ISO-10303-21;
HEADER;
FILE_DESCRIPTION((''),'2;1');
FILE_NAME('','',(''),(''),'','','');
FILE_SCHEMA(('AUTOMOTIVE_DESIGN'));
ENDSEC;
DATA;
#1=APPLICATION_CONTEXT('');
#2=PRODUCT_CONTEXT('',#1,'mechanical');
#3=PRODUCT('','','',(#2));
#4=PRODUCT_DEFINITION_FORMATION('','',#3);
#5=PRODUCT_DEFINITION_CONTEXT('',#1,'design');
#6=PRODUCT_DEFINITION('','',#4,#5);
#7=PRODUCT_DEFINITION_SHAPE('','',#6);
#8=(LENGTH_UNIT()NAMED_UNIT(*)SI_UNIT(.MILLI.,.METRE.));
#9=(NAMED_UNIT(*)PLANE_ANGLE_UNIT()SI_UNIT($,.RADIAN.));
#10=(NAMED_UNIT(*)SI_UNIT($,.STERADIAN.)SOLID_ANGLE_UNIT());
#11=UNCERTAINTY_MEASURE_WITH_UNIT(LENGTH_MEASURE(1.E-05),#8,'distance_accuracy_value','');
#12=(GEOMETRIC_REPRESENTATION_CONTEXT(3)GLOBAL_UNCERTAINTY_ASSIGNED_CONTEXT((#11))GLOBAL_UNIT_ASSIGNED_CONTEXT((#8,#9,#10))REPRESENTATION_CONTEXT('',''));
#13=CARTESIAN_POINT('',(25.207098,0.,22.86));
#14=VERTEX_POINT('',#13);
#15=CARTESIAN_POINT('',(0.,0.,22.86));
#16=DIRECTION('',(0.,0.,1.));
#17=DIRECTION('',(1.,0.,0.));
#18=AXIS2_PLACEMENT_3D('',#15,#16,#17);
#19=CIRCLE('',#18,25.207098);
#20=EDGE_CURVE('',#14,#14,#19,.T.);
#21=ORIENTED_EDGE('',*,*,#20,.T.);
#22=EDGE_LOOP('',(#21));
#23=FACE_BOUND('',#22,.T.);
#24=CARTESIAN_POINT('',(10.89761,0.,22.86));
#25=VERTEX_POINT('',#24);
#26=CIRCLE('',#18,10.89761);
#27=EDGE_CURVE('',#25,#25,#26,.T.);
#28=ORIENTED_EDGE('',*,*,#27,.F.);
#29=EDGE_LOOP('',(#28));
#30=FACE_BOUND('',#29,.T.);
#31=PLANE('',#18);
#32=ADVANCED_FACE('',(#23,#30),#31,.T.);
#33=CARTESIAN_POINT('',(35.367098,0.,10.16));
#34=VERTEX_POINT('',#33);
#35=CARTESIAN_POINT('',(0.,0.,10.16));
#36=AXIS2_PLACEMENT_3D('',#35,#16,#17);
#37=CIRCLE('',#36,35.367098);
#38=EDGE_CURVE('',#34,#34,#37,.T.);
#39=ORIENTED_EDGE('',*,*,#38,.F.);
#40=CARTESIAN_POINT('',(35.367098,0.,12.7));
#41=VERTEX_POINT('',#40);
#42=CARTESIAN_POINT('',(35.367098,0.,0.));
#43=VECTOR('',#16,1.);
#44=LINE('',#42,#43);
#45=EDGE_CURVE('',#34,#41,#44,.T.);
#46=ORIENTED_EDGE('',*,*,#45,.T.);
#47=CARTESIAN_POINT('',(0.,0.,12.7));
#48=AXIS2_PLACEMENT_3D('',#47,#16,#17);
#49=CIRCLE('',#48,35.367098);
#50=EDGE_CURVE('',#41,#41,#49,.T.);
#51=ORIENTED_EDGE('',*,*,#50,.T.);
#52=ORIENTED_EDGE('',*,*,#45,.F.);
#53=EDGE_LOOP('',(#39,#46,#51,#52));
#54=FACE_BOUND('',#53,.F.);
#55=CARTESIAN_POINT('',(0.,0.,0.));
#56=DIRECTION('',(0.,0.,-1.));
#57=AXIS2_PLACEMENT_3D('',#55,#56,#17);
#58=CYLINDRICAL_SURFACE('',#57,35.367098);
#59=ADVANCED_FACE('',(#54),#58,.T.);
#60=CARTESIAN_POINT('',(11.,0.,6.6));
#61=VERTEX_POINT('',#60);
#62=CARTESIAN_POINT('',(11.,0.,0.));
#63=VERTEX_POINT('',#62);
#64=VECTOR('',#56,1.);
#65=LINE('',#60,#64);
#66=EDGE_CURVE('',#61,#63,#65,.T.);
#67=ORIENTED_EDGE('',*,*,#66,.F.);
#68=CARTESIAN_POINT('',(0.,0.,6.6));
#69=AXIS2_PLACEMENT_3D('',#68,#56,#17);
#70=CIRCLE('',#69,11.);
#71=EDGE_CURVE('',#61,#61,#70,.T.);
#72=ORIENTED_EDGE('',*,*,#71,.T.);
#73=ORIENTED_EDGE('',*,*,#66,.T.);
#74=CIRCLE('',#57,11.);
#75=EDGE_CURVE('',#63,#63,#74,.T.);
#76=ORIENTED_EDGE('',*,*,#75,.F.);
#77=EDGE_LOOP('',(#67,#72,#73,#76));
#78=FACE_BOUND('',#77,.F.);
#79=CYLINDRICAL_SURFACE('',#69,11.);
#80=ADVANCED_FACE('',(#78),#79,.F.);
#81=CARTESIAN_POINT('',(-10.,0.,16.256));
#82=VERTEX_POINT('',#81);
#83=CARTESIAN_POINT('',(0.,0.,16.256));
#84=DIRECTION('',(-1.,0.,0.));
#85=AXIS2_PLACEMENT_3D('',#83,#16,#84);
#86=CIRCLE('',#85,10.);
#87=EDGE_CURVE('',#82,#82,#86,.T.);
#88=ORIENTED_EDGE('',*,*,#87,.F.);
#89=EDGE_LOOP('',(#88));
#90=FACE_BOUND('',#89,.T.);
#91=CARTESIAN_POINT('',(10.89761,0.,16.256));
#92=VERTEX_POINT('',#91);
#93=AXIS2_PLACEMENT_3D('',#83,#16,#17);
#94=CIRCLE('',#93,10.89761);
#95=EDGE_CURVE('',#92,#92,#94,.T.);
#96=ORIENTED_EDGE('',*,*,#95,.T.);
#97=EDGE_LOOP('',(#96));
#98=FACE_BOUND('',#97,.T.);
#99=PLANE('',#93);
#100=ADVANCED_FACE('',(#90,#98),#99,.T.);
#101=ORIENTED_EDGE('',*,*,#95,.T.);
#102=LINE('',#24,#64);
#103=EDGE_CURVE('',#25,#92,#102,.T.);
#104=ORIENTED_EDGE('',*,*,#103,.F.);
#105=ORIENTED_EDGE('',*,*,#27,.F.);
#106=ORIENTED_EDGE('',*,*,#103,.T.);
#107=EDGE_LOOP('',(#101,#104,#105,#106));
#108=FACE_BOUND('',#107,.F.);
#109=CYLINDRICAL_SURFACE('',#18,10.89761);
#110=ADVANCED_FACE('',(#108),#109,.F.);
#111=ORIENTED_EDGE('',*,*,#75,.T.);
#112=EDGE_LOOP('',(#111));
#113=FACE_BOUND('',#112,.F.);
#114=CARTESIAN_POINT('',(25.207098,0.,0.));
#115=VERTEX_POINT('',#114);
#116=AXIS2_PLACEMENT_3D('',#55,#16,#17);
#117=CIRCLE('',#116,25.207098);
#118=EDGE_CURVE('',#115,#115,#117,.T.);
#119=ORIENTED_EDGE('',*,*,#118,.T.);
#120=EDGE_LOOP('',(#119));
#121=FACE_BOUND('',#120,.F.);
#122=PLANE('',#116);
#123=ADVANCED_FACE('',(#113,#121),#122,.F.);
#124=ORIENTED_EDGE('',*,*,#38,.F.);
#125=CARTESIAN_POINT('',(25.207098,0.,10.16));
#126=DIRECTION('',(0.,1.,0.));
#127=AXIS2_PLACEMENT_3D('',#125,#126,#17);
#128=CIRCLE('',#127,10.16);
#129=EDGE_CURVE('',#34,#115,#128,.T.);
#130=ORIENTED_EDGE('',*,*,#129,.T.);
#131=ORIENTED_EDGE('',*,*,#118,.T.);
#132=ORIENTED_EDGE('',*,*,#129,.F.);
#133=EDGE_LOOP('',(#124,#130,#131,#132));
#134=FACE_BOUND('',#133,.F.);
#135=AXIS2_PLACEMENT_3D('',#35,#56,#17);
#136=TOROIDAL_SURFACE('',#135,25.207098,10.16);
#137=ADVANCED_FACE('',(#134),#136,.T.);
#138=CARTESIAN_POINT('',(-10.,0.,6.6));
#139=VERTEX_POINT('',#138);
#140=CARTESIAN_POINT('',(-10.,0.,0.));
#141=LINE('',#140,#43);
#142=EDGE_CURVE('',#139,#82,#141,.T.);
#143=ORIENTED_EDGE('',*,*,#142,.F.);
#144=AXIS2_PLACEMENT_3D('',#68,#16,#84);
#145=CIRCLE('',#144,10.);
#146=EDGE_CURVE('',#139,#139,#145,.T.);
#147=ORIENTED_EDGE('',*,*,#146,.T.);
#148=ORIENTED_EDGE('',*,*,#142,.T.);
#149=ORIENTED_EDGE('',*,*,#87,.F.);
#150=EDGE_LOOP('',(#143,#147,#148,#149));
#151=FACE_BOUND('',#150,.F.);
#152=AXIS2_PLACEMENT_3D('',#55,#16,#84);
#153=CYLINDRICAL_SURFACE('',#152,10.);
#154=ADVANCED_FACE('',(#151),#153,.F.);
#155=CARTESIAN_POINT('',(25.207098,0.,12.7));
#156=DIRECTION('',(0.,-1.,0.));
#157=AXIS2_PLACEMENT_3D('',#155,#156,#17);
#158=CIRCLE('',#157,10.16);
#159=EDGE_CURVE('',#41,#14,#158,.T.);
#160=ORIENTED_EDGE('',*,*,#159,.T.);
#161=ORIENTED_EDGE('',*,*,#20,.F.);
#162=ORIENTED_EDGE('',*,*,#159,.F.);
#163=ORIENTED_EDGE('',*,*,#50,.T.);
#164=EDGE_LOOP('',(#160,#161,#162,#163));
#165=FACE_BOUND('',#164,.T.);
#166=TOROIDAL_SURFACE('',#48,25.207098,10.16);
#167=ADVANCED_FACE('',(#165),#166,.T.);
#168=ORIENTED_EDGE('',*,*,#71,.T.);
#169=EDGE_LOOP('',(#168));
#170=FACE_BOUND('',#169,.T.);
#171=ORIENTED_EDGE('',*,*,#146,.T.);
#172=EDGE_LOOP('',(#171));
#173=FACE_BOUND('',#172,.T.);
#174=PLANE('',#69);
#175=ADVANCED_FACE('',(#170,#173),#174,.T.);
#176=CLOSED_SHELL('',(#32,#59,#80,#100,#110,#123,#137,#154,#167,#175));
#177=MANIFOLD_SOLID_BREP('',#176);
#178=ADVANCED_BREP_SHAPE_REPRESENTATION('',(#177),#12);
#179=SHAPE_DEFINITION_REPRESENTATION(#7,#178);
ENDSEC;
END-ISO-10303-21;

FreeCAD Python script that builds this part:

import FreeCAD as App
import Part
import Sketcher

V = App.Vector
Q = App.Units.Quantity


def edges_at(feature, points):
    """Names of the edges that pass closest to the given points."""
    edges = feature.Shape.Edges
    near = lambda p: min(range(len(edges)), key=lambda i: edges[i].distToShape(Part.Vertex(*p))[0])
    return sorted({f"Edge{near(p) + 1}" for p in points})

doc = App.newDocument("Part")
body = doc.addObject("PartDesign::Body", "Body")

# Sketch on XY plane
sketch1 = body.newObject("Sketcher::SketchObject", "Sketch")
sketch1.AttachmentSupport = (doc.getObject("XY_Plane"), [""])
sketch1.MapMode = "FlatFace"
sketch1.addGeometry(Part.Circle(V(0, 0, 0), V(0, 0, 1), 35), False)
sketch1.addConstraint([
    Sketcher.Constraint("Coincident", 0, 3, -1, 1),
    Sketcher.Constraint("Diameter", 0, 70.734196),
])
pad1 = body.newObject("PartDesign::Pad", "Pad")
pad1.Profile = sketch1
pad1.Length = Q("0.9 in")

# Sketch on XY plane
sketch2 = body.newObject("Sketcher::SketchObject", "Sketch001")
sketch2.AttachmentSupport = (doc.getObject("XY_Plane"), [""])
sketch2.MapMode = "FlatFace"
sketch2.addGeometry(Part.Circle(V(0, 0, 0), V(0, 0, 1), 10), False)
sketch2.addConstraint([
    Sketcher.Constraint("Coincident", 0, 3, -1, 1),
    Sketcher.Constraint("Diameter", 0, 20.0),
])
doc.recompute()
hole = body.newObject("PartDesign::Hole", "Hole")
hole.Profile = sketch2
hole.ThreadType = "None"
hole.Diameter = 20
hole.DepthType = "ThroughAll"
hole.HoleCutType = "Counterbore"
hole.HoleCutDiameter = 22
hole.HoleCutDepth = 6.6
hole.Reversed = True

# Sketch on XY plane
sketch3 = body.newObject("Sketcher::SketchObject", "Sketch002")
sketch3.AttachmentSupport = (doc.getObject("XY_Plane"), [""])
sketch3.MapMode = "FlatFace"
sketch3.AttachmentOffset = App.Placement(V(0, 0, 0.9 * 25.4), App.Rotation())
sketch3.addGeometry(Part.Circle(V(0, 0, 0), V(0, 0, 1), 11), False)
sketch3.addConstraint([
    Sketcher.Constraint("Coincident", 0, 3, -1, 1),
    Sketcher.Constraint("Diameter", 0, 21.79522),
])
pocket1 = body.newObject("PartDesign::Pocket", "Pocket")
pocket1.Profile = sketch3
pocket1.Length = Q("0.26 in")
doc.recompute()

fillet = body.newObject("PartDesign::Fillet", "Fillet")
fillet.Base = (pocket1, edges_at(pocket1, [(35.367, 0, 11.43), (-35.367, 0, 0), (-35.367, 0, 22.86)]))
fillet.Radius = Q("0.4 in")

doc.recompute()
